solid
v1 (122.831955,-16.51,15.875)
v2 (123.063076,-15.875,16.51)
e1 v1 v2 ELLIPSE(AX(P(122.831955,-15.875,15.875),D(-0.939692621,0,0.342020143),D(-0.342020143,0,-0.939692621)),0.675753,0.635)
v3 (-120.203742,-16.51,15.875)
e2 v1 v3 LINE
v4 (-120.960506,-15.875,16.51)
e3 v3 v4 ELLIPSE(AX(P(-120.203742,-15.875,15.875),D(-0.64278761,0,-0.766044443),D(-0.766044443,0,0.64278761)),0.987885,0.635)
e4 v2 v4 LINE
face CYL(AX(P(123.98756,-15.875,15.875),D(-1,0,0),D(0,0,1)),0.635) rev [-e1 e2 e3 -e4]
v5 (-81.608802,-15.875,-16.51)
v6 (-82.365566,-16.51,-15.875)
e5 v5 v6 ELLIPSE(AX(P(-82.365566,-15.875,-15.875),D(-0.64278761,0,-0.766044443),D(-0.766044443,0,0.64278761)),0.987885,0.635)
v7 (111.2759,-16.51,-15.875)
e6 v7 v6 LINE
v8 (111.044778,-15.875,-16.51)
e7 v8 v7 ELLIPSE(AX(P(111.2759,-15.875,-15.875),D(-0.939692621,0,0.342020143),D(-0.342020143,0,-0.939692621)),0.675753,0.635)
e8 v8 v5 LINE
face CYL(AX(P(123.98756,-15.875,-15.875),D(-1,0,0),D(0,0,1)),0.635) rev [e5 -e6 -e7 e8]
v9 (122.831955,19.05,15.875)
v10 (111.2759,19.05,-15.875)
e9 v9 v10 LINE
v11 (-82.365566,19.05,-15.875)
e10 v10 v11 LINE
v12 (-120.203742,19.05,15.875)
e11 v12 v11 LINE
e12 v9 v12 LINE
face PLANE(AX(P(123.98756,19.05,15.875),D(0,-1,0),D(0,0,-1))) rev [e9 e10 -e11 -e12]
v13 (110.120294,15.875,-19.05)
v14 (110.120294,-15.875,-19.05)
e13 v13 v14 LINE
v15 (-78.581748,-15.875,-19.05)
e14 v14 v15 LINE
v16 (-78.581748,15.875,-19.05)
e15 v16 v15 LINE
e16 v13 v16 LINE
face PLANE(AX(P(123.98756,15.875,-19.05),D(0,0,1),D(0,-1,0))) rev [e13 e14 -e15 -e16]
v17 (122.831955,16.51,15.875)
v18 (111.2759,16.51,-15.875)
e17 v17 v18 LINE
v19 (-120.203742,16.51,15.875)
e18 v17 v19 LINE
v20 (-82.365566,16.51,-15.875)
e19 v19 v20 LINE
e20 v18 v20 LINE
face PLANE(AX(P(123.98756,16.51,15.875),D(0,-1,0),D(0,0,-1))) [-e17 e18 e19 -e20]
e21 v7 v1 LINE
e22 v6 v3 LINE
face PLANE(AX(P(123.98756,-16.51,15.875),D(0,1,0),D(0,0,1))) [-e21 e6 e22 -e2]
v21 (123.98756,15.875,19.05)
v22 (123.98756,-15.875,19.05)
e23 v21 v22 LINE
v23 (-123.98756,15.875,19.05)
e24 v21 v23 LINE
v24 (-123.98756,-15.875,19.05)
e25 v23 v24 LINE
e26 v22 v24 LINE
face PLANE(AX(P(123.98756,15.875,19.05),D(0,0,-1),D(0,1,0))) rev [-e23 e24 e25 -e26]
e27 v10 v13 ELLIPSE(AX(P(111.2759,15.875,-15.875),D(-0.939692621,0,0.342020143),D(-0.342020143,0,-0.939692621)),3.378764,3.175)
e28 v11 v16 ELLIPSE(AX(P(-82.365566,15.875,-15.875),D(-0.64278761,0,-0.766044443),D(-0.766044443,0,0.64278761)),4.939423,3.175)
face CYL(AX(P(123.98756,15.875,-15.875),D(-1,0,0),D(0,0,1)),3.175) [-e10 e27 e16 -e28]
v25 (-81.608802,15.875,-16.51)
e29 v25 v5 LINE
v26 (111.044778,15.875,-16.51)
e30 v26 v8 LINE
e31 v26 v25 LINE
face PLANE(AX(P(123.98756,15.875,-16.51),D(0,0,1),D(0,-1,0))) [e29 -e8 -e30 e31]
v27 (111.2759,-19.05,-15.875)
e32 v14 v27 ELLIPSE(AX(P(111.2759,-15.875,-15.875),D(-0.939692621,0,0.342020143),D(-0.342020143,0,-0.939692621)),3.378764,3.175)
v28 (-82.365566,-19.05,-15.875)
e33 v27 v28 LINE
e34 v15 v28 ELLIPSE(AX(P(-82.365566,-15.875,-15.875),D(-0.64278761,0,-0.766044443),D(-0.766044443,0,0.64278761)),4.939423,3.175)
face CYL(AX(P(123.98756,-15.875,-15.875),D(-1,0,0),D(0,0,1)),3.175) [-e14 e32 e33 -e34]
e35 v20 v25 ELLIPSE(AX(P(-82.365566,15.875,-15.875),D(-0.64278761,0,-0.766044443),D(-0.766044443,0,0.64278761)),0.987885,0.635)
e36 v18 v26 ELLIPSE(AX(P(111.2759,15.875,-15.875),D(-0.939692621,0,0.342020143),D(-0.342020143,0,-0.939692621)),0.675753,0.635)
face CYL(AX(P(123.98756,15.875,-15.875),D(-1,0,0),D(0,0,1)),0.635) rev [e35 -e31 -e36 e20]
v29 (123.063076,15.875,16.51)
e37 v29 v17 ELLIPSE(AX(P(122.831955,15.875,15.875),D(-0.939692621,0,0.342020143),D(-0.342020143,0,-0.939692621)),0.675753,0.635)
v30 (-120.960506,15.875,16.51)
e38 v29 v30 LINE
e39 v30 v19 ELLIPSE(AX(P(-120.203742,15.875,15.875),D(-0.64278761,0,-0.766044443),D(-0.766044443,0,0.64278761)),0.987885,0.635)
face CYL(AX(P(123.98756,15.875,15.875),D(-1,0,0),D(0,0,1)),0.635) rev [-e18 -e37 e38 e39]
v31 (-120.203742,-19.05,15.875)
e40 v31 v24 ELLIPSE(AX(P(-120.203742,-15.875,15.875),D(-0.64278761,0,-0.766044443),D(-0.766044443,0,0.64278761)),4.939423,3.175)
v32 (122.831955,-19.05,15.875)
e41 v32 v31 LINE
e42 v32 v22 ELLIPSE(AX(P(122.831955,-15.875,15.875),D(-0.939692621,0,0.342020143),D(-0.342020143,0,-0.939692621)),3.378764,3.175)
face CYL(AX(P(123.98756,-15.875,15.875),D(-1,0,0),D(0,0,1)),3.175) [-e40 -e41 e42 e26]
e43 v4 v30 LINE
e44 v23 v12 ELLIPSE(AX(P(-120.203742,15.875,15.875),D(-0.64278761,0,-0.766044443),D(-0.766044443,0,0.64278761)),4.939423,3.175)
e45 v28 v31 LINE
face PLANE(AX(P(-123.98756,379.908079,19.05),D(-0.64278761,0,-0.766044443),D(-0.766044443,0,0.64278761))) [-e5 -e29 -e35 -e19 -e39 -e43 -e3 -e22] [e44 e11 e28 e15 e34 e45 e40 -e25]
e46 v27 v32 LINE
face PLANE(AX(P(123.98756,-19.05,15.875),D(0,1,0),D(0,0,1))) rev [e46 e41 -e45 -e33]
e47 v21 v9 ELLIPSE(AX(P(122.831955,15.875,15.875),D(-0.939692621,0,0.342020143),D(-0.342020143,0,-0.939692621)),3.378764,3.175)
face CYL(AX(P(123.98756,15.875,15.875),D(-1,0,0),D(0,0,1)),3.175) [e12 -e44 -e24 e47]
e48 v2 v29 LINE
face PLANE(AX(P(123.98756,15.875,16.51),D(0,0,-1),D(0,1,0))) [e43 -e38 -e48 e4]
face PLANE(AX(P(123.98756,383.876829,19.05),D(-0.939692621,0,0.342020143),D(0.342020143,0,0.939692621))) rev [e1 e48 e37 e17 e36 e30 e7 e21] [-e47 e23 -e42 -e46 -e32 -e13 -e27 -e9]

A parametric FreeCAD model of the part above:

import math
import FreeCAD as App
import Part
import Sketcher
from FreeCAD import Vector
Q = App.Units.Quantity


def add_polygon(sketch, points):
    """Adds a closed chain of lines whose ends are joined by coincident constraints."""
    first, n = sketch.GeometryCount, len(points)
    for a, b in zip(points, points[1:] + points[:1]):
        sketch.addGeometry(Part.LineSegment(App.Vector(*a, 0), App.Vector(*b, 0)), False)
    for i in range(n):
        sketch.addConstraint(Sketcher.Constraint("Coincident", first + i, 2, first + (i + 1) % n, 1))

doc = App.newDocument("Part")
body = doc.addObject("PartDesign::Body", "Body")

# Sketch on YZ plane
sketch1 = body.newObject("Sketcher::SketchObject", "Sketch")
sketch1.AttachmentSupport = (doc.getObject("YZ_Plane"), [""])
sketch1.MapMode = "FlatFace"
sketch1.addGeometry([
    Part.LineSegment(Vector(19.1, -15.9, 0), Vector(19.1, 15.9, 0)),  # 0
    Part.ArcOfCircle(Part.Circle(Vector(15.9, 15.9, 0), Vector(0, 0, 1), 3.2), math.radians(0), math.radians(90)),  # 1
    Part.LineSegment(Vector(15.9, 19.1, 0), Vector(-15.9, 19.1, 0)),  # 2
    Part.ArcOfCircle(Part.Circle(Vector(-15.9, 15.9, 0), Vector(0, 0, 1), 3.2), math.radians(90), math.radians(180)),  # 3
    Part.LineSegment(Vector(-19.1, 15.9, 0), Vector(-19.1, -15.9, 0)),  # 4
    Part.ArcOfCircle(Part.Circle(Vector(-15.9, -15.9, 0), Vector(0, 0, 1), 3.2), math.radians(-180), math.radians(-90)),  # 5
    Part.LineSegment(Vector(-15.9, -19.1, 0), Vector(15.9, -19.1, 0)),  # 6
    Part.ArcOfCircle(Part.Circle(Vector(15.9, -15.9, 0), Vector(0, 0, 1), 3.2), math.radians(-90), math.radians(0)),  # 7
    Part.LineSegment(Vector(16.5, 15.9, 0), Vector(16.5, -15.9, 0)),  # 8
    Part.ArcOfCircle(Part.Circle(Vector(15.9, -15.9, 0), Vector(0, 0, 1), 0.6), math.radians(-90), math.radians(0)),  # 9
    Part.LineSegment(Vector(15.9, -16.5, 0), Vector(-15.9, -16.5, 0)),  # 10
    Part.ArcOfCircle(Part.Circle(Vector(-15.9, -15.9, 0), Vector(0, 0, 1), 0.6), math.radians(180), math.radians(270)),  # 11
    Part.LineSegment(Vector(-16.5, -15.9, 0), Vector(-16.5, 15.9, 0)),  # 12
    Part.ArcOfCircle(Part.Circle(Vector(-15.9, 15.9, 0), Vector(0, 0, 1), 0.6), math.radians(90), math.radians(180)),  # 13
    Part.LineSegment(Vector(-15.9, 16.5, 0), Vector(15.9, 16.5, 0)),  # 14
    Part.ArcOfCircle(Part.Circle(Vector(15.9, 15.9, 0), Vector(0, 0, 1), 0.6), math.radians(0), math.radians(90)),  # 15
], False)
sketch1.addConstraint([
    Sketcher.Constraint("Tangent", 0, 2, 1, 1),
    Sketcher.Constraint("Tangent", 1, 2, 2, 1),
    Sketcher.Constraint("Tangent", 2, 2, 3, 1),
    Sketcher.Constraint("Tangent", 3, 2, 4, 1),
    Sketcher.Constraint("Tangent", 4, 2, 5, 1),
    Sketcher.Constraint("Tangent", 5, 2, 6, 1),
    Sketcher.Constraint("Tangent", 6, 2, 7, 1),
    Sketcher.Constraint("Tangent", 7, 2, 0, 1),
    Sketcher.Constraint("Tangent", 8, 2, 9, 2),
    Sketcher.Constraint("Tangent", 9, 1, 10, 1),
    Sketcher.Constraint("Tangent", 10, 2, 11, 2),
    Sketcher.Constraint("Tangent", 11, 1, 12, 1),
    Sketcher.Constraint("Tangent", 12, 2, 13, 2),
    Sketcher.Constraint("Tangent", 13, 1, 14, 1),
    Sketcher.Constraint("Tangent", 14, 2, 15, 2),
    Sketcher.Constraint("Tangent", 15, 1, 8, 1),
    Sketcher.Constraint("Vertical", 0),
    Sketcher.Constraint("Horizontal", 2),
    Sketcher.Constraint("Vertical", 4),
    Sketcher.Constraint("Horizontal", 6),
    Sketcher.Constraint("Vertical", 8),
    Sketcher.Constraint("Horizontal", 10),
    Sketcher.Constraint("Vertical", 12),
    Sketcher.Constraint("Horizontal", 14),
    Sketcher.Constraint("Coincident", 9, 3, 7, 3),
    Sketcher.Constraint("Coincident", 11, 3, 5, 3),
    Sketcher.Constraint("Coincident", 13, 3, 3, 3),
    Sketcher.Constraint("Equal", 1, 3),
    Sketcher.Constraint("Equal", 3, 5),
    Sketcher.Constraint("Equal", 5, 7),
    Sketcher.Constraint("Equal", 13, 15),
    Sketcher.Constraint("Symmetric", 1, 3, 5, 3, -1, 1),
    Sketcher.Constraint("Equal", 14, 0),
    Sketcher.Constraint("Radius", 1, Q("0.125 in")),
    Sketcher.Constraint("Radius", 9, Q("0.025 in")),
    Sketcher.Constraint("DistanceX", 2, 2, 2, 1, Q("1.25 in")),
])
pad1 = body.newObject("PartDesign::Pad", "Pad")
pad1.Profile = sketch1
pad1.Length = Q("9.7628 in")
pad1.Midplane = True

# Sketch on XZ plane
sketch2 = body.newObject("Sketcher::SketchObject", "Sketch001")
sketch2.AttachmentSupport = (doc.getObject("XZ_Plane"), [""])
sketch2.MapMode = "FlatFace"
sketch2.AttachmentOffset = App.Placement(Vector(0, 0, -0.75 * 25.4), App.Rotation())
add_polygon(sketch2, [(124, 19), (299, 500), (1261, 150), (897, -850), (-65, -500), (110, -19)])  # lines 0-5
sketch2.addConstraint([
    Sketcher.Constraint("Perpendicular", 0, 1),
    Sketcher.Constraint("Perpendicular", 1, 2),
    Sketcher.Constraint("Perpendicular", 2, 3),
    Sketcher.Constraint("Perpendicular", 3, 4),
    Sketcher.Constraint("Parallel", 4, 5),
    Sketcher.Constraint("Equal", 0, 4),
    Sketcher.Constraint("Angle", 0, Q("70 deg")),
    Sketcher.Constraint("DistanceY", 4, 2, 5, 2, Q("1.5 in")),
    Sketcher.Constraint("DistanceY", 4, 2, -1, 1, Q("0.75 in")),
    Sketcher.Constraint("DistanceX", -1, 1, 5, 2, Q("4.8814 in")),
    Sketcher.Constraint("Distance", 2, 1064.085069),
    Sketcher.Constraint("DistanceY", -1, 1, 1, 2, 149.885182),
])
pocket1 = body.newObject("PartDesign::Pocket", "Pocket")
pocket1.Profile = sketch2
pocket1.Type = "ThroughAll"
pocket1.Midplane = True

# Sketch on XZ plane
sketch3 = body.newObject("Sketcher::SketchObject", "Sketch002")
sketch3.AttachmentSupport = (doc.getObject("XZ_Plane"), [""])
sketch3.MapMode = "FlatFace"
sketch3.AttachmentOffset = App.Placement(Vector(0, 0, -0.75 * 25.4), App.Rotation())
add_polygon(sketch3, [(-516, 348), (-124, 19), (-79, -19), (313, -348), (-344, -1132), (-1174, -436)])  # lines 0-5
sketch3.addConstraint([
    Sketcher.Constraint("Parallel", 0, 1),
    Sketcher.Constraint("Parallel", 1, 2),
    Sketcher.Constraint("Perpendicular", 2, 3),
    Sketcher.Constraint("Perpendicular", 3, 4),
    Sketcher.Constraint("Perpendicular", 4, 5),
    Sketcher.Constraint("Equal", 0, 2),
    Sketcher.Constraint("Angle", 0, Q("-40 deg")),
    Sketcher.Constraint("DistanceY", 1, 2, 0, 2, Q("1.5 in")),
    Sketcher.Constraint("DistanceY", -1, 1, 0, 2, Q("0.75 in")),
    Sketcher.Constraint("DistanceX", 0, 2, -1, 1, Q("4.8814 in")),
    Sketcher.Constraint("DistanceX", 4, 2, 1, 2, 1095.3631),
    Sketcher.Constraint("DistanceX", 5, 2, 3, 2, 171.564098),
])
pocket2 = body.newObject("PartDesign::Pocket", "Pocket001")
pocket2.Profile = sketch3
pocket2.Type = "ThroughAll"
pocket2.Midplane = True

doc.recompute()
